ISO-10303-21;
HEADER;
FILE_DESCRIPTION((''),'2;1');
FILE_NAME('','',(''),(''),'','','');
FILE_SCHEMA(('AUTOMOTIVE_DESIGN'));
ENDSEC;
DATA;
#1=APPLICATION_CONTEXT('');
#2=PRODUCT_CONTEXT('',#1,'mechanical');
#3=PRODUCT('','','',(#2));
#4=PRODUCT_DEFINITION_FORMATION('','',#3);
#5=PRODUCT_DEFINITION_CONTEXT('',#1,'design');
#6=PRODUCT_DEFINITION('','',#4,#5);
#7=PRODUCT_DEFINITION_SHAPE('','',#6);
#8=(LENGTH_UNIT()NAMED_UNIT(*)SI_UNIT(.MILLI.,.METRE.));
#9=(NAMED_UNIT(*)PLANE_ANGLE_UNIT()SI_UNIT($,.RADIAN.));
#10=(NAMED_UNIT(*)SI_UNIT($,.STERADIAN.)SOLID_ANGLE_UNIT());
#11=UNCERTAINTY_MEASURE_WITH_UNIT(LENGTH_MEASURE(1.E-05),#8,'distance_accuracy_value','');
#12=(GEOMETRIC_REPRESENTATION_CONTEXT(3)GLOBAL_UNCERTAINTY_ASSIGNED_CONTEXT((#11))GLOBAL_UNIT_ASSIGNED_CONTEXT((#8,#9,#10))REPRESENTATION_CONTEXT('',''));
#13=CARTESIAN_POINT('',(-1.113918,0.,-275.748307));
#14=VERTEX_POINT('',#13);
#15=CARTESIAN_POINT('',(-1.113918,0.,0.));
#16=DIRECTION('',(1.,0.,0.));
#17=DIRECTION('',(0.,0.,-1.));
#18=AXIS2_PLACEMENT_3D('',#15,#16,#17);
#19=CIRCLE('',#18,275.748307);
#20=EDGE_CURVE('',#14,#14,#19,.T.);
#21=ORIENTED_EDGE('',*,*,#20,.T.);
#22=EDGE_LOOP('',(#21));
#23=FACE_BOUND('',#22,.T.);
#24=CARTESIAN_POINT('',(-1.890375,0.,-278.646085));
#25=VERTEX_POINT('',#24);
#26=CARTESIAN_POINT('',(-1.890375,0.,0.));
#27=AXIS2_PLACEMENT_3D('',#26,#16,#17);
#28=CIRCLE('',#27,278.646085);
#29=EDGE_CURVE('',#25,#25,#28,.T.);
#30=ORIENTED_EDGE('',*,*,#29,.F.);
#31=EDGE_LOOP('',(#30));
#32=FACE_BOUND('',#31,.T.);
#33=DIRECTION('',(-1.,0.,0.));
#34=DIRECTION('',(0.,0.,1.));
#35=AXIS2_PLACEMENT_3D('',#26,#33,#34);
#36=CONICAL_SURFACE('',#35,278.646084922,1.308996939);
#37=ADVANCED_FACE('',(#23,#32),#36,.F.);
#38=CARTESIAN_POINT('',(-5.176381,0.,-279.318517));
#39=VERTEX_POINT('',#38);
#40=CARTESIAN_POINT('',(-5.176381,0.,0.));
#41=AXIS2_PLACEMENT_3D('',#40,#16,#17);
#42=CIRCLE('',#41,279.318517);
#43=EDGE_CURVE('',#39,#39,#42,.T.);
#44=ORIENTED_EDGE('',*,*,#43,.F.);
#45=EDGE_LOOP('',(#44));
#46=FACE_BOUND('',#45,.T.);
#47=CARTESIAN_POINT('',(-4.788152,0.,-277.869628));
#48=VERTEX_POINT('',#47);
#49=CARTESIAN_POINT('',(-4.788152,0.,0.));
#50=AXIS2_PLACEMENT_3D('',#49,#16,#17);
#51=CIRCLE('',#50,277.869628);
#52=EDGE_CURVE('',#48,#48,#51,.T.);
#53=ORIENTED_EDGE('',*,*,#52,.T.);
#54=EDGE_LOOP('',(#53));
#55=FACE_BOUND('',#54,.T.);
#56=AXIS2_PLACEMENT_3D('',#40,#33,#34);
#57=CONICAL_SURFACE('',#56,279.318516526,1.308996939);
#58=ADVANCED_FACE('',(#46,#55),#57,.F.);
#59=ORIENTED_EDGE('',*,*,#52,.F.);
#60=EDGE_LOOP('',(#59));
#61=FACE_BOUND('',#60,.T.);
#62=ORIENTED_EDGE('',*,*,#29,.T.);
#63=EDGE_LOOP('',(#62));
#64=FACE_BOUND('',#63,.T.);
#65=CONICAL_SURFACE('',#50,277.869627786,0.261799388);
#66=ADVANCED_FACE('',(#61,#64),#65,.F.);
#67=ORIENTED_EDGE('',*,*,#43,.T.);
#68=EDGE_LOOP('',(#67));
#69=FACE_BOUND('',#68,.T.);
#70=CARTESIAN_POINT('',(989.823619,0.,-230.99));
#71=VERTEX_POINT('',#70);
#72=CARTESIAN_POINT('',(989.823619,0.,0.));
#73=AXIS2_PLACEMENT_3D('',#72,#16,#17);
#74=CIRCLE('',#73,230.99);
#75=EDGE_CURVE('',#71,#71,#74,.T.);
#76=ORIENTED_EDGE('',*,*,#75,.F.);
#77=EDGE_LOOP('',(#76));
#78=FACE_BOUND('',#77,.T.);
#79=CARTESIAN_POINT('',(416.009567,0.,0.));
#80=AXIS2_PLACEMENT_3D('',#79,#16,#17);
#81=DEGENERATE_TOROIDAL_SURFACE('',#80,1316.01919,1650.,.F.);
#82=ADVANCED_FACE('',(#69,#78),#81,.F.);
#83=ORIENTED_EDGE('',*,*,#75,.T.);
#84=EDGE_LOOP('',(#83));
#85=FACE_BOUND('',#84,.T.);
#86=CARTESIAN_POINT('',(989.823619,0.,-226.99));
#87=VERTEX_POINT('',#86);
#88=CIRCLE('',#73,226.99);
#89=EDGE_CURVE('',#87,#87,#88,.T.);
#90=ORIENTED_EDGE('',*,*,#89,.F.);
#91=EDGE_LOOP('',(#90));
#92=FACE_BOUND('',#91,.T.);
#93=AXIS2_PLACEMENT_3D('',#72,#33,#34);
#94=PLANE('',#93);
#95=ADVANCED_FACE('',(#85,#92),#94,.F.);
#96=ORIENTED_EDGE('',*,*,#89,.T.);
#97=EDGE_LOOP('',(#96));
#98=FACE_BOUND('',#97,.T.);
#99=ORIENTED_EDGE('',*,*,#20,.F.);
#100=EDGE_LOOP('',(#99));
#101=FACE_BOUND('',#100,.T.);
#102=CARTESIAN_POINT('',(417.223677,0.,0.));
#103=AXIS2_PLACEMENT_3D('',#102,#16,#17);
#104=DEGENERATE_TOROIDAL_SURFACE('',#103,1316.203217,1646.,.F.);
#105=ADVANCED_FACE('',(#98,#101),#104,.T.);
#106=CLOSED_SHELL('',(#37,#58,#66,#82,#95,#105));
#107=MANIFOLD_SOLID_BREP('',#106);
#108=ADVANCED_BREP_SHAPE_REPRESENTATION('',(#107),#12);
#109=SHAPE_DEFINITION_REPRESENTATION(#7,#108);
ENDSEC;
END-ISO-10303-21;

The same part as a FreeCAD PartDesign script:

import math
import FreeCAD as App
import Part
import Sketcher

V = App.Vector
Q = App.Units.Quantity

doc = App.newDocument("Part")
body = doc.addObject("PartDesign::Body", "Body")

# Sketch on XY plane
sketch1 = body.newObject("Sketcher::SketchObject", "Sketch")
sketch1.AttachmentSupport = (doc.getObject("XY_Plane"), [""])
sketch1.MapMode = "FlatFace"
sketch1.addGeometry([
    Part.LineSegment(V(-1.890375, 278.646085, 0), V(-1.113918, 275.748307, 0)),  # 0
    Part.ArcOfCircle(Part.Circle(V(417.223677, -1316.203217, 0), V(0, 0, 1), 1646), math.radians(69.64269), math.radians(104.723465)),  # 1
    Part.LineSegment(V(989.823619, 226.99, 0), V(989.823619, 230.99, 0)),  # 2
    Part.ArcOfCircle(Part.Circle(V(416.009567, -1316.01919, 0), V(0, 0, 1), 1650), math.radians(69.64926), math.radians(104.789241)),  # 3
    Part.LineSegment(V(-5.176381, 279.318517, 0), V(-4.788152, 277.869628, 0)),  # 4
    Part.LineSegment(V(-4.788152, 277.869628, 0), V(-1.890375, 278.646085, 0)),  # 5
], False)
sketch1.addConstraint([
    Sketcher.Constraint("Coincident", 0, 2, 1, 2),
    Sketcher.Constraint("Coincident", 1, 1, 2, 1),
    Sketcher.Constraint("Coincident", 2, 2, 3, 1),
    Sketcher.Constraint("Coincident", 3, 2, 4, 1),
    Sketcher.Constraint("Coincident", 4, 2, 5, 1),
    Sketcher.Constraint("Coincident", 5, 2, 0, 1),
    Sketcher.Constraint("Vertical", 2),
    Sketcher.Constraint("Parallel", 0, 4),
    Sketcher.Constraint("Perpendicular", 4, 5),
    Sketcher.Constraint("Equal", 0, 5),
    Sketcher.Constraint("Radius", 1, 1646.0),
    Sketcher.Constraint("Radius", 3, 1650.0),
    Sketcher.Constraint("DistanceY", 2, 1, 2, 2, 4.0),
    Sketcher.Constraint("Angle", 0, Q("-75 deg")),
    Sketcher.Constraint("Distance", 0, 3.0),
    Sketcher.Constraint("Distance", 4, 1.5),
    Sketcher.Constraint("DistanceY", -1, 1, 2, 2, 230.99),
    Sketcher.Constraint("DistanceY", 3, 3, -1, 1, 1316.01919),
    Sketcher.Constraint("DistanceX", -1, 1, 2, 2, 989.823619),
    Sketcher.Constraint("DistanceX", 4, 2, 2, 2, 994.611771),
])
revolution = body.newObject("PartDesign::Revolution", "Revolution")
revolution.Profile = sketch1
revolution.ReferenceAxis = (sketch1, ["H_Axis"])
revolution.Angle = 360

doc.recompute()
